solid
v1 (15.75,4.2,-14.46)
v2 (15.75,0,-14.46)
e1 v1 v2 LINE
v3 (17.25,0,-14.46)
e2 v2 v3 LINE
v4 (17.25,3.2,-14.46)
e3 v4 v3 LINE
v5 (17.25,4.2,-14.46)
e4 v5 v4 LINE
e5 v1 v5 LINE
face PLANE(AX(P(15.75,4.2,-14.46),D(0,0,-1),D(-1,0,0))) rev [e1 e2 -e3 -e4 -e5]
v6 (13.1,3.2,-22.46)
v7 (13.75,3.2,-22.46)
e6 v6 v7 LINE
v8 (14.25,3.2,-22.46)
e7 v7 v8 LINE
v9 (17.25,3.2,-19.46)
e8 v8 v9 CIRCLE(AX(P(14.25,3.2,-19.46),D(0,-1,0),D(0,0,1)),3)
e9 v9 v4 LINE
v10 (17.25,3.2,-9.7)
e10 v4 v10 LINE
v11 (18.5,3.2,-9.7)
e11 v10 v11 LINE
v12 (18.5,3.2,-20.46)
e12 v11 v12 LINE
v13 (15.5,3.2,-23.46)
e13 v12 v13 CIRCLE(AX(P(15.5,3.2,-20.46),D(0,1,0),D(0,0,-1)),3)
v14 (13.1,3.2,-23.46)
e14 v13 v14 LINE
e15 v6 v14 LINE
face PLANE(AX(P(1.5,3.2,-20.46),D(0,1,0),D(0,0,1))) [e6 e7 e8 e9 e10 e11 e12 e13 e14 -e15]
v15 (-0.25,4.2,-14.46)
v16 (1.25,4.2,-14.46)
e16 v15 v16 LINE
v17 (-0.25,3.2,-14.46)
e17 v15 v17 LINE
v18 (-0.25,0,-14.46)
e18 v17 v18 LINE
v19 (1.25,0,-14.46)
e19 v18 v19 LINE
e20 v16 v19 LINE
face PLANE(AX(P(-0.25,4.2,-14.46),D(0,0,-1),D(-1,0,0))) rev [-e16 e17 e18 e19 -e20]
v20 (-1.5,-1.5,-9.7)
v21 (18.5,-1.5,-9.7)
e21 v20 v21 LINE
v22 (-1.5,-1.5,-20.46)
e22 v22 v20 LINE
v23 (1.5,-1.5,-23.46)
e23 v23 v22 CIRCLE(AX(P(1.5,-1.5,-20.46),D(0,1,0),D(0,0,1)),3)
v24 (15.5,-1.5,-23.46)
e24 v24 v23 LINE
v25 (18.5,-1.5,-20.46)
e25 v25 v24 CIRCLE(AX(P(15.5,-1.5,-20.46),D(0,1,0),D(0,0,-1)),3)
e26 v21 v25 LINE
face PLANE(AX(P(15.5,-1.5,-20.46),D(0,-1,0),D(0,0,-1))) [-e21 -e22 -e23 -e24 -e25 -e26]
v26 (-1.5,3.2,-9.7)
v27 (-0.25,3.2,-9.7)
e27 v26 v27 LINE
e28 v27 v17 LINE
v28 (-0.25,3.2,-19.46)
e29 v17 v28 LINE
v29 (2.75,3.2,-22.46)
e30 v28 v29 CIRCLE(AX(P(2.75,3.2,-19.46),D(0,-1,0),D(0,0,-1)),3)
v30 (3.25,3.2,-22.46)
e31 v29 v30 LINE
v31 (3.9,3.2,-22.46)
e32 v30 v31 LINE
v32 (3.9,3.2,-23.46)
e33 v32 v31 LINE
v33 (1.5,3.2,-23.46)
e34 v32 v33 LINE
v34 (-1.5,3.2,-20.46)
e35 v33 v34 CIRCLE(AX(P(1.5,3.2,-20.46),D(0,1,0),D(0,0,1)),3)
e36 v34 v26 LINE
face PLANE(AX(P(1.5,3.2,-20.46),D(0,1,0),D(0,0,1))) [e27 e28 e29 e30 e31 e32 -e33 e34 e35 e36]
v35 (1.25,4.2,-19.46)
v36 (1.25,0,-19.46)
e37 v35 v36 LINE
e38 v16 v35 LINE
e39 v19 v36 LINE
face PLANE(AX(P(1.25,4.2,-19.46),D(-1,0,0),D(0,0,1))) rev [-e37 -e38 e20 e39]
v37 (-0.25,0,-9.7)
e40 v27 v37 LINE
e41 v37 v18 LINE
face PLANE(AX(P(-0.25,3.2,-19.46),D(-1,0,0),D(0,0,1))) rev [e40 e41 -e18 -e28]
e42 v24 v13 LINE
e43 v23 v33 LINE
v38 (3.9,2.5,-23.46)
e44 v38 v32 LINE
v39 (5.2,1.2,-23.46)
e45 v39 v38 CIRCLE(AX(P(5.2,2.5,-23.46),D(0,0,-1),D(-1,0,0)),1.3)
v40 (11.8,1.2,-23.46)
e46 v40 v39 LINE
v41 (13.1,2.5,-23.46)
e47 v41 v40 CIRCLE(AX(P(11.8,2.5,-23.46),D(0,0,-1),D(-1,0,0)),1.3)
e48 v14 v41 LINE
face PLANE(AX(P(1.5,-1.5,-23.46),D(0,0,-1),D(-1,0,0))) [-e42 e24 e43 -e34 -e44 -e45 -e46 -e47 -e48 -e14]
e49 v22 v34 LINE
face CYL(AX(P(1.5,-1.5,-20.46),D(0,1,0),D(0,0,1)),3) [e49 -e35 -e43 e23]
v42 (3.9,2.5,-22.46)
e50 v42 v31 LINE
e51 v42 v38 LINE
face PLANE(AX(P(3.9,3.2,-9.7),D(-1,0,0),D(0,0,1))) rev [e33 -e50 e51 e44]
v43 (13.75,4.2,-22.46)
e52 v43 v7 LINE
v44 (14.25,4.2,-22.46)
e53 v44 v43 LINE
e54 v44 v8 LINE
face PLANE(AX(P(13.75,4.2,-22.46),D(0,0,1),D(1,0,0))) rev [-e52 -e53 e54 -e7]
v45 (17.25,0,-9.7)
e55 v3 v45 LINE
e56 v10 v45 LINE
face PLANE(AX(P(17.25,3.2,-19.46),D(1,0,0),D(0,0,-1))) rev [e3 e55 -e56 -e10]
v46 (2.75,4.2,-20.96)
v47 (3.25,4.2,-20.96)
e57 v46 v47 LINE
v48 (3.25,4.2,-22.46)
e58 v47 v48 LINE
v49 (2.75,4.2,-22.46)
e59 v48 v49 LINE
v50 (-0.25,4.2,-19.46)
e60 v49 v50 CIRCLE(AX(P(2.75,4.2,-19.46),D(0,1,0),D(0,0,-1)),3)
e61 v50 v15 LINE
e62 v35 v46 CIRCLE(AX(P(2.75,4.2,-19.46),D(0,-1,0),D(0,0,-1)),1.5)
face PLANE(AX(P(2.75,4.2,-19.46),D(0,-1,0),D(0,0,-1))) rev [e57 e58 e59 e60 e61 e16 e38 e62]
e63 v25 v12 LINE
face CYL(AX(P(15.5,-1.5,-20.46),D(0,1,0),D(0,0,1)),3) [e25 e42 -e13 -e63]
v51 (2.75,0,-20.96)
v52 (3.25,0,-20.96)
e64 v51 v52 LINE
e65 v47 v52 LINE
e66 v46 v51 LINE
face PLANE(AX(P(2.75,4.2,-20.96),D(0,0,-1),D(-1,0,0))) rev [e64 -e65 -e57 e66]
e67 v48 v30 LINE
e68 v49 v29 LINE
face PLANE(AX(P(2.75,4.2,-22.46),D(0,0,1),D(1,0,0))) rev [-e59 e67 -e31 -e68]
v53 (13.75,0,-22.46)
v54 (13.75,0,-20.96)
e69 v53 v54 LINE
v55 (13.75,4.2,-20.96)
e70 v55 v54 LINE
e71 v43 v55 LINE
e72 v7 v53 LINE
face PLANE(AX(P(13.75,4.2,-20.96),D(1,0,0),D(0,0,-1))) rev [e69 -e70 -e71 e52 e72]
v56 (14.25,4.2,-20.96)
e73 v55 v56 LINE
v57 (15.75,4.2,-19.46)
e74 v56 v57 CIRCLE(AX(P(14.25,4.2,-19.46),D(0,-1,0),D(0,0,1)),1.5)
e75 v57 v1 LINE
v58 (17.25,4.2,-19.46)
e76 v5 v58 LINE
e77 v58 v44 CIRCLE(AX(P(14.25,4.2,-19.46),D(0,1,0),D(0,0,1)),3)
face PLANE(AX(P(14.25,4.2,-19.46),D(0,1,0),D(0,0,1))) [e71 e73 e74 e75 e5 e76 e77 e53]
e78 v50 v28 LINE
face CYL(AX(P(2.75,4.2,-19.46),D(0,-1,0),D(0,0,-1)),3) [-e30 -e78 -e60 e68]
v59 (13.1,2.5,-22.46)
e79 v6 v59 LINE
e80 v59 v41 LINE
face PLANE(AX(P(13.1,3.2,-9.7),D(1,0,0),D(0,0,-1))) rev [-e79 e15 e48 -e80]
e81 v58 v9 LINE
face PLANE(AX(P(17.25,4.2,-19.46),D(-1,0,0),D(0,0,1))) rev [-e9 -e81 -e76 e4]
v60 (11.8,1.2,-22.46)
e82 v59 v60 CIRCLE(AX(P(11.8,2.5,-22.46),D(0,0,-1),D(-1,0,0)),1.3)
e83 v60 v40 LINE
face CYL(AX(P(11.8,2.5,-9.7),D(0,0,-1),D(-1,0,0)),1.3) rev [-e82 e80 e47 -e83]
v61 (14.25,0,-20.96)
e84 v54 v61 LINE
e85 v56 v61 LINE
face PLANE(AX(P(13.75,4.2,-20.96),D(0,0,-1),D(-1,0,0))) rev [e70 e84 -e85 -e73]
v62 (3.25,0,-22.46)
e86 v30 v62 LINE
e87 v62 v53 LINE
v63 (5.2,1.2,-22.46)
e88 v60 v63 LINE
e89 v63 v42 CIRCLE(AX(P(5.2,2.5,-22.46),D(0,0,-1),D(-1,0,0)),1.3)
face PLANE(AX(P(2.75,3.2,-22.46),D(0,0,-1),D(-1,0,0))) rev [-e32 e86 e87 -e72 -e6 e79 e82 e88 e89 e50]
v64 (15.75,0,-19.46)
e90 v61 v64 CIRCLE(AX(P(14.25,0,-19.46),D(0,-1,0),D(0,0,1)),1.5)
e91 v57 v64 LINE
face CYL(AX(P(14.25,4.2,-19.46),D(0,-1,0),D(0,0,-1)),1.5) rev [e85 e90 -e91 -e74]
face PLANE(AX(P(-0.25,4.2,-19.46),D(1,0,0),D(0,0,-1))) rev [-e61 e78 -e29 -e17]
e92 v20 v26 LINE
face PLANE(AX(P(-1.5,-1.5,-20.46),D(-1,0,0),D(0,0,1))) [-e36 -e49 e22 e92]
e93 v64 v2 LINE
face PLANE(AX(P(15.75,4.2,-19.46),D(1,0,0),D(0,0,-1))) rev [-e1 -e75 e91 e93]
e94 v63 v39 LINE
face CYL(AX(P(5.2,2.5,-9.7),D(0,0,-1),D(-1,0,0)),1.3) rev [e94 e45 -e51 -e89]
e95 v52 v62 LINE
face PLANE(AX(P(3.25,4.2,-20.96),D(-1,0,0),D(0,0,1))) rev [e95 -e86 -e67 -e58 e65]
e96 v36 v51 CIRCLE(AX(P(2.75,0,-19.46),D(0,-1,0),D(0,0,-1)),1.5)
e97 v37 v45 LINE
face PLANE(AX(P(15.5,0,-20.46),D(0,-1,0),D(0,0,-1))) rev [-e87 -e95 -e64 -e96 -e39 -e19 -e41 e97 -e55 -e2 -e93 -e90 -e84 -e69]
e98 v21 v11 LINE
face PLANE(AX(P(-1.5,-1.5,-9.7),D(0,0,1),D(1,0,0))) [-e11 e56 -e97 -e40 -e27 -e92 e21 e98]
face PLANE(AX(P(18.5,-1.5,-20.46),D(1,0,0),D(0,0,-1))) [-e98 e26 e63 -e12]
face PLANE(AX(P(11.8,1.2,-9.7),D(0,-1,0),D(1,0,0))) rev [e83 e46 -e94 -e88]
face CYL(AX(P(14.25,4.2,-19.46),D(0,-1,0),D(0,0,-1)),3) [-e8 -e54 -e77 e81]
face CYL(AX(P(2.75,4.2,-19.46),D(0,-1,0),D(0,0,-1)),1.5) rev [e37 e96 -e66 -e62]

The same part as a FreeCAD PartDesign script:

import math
import FreeCAD as App
import Part
import Sketcher
from FreeCAD import Vector
Q = App.Units.Quantity

doc = App.newDocument("Part")
body = doc.addObject("PartDesign::Body", "Body")

# Sketch on XZ plane
sketch1 = body.newObject("Sketcher::SketchObject", "Sketch")
sketch1.AttachmentSupport = (doc.getObject("XZ_Plane"), [""])
sketch1.MapMode = "FlatFace"
sketch1.addGeometry(Part.LineSegment(Vector(-1.5, -20.46, 0), Vector(-1.5, -9.7, 0)), False)
sketch1.addGeometry(Part.LineSegment(Vector(-1.5, -9.7, 0), Vector(18.5, -9.7, 0)), False)
sketch1.addGeometry(Part.LineSegment(Vector(18.5, -9.7, 0), Vector(18.5, -20.46, 0)), False)
sketch1.addGeometry(Part.ArcOfCircle(Part.Circle(Vector(15.5, -20.46, 0), Vector(0, 0, 1), 3), math.radians(-90), math.radians(0)), False)
sketch1.addGeometry(Part.LineSegment(Vector(15.5, -23.46, 0), Vector(1.5, -23.46, 0)), False)
sketch1.addGeometry(Part.ArcOfCircle(Part.Circle(Vector(1.5, -20.46, 0), Vector(0, 0, 1), 3), math.radians(180), math.radians(270)), False)
sketch1.addConstraint(Sketcher.Constraint("Coincident", 0, 2, 1, 1))
sketch1.addConstraint(Sketcher.Constraint("Coincident", 1, 2, 2, 1))
sketch1.addConstraint(Sketcher.Constraint("Tangent", 2, 2, 3, 2))
sketch1.addConstraint(Sketcher.Constraint("Tangent", 3, 1, 4, 1))
sketch1.addConstraint(Sketcher.Constraint("Tangent", 4, 2, 5, 2))
sketch1.addConstraint(Sketcher.Constraint("Tangent", 5, 1, 0, 1))
sketch1.addConstraint(Sketcher.Constraint("Vertical", 0))
sketch1.addConstraint(Sketcher.Constraint("Horizontal", 1))
sketch1.addConstraint(Sketcher.Constraint("Vertical", 2))
sketch1.addConstraint(Sketcher.Constraint("Horizontal", 4))
sketch1.addConstraint(Sketcher.Constraint("Equal", 3, 5))
sketch1.addConstraint(Sketcher.Constraint("Radius", 3, Q("3 mm")))
sketch1.addConstraint(Sketcher.Constraint("DistanceX", 1, 1, 1, 2, Q("20 mm")))
sketch1.addConstraint(Sketcher.Constraint("DistanceY", 0, 1, 0, 2, Q("10.76 mm")))
sketch1.addConstraint(Sketcher.Constraint("DistanceX", -1, 1, 3, 3, Q("15.5 mm")))
sketch1.addConstraint(Sketcher.Constraint("DistanceY", 0, 2, -1, 1, Q("9.7 mm")))
pad1 = body.newObject("PartDesign::Pad", "Pad")
pad1.Profile = sketch1
pad1.Length = 1.5

# Sketch on XZ plane
sketch2 = body.newObject("Sketcher::SketchObject", "Sketch001")
sketch2.AttachmentSupport = (doc.getObject("XZ_Plane"), [""])
sketch2.MapMode = "FlatFace"
sketch2.AttachmentOffset = App.Placement(Vector(0, 0, -3.2), App.Rotation())
sketch2.addGeometry(Part.LineSegment(Vector(2.75, -22.46, 0), Vector(14.25, -22.46, 0)), False)
sketch2.addGeometry(Part.ArcOfCircle(Part.Circle(Vector(14.25, -19.46, 0), Vector(0, 0, 1), 3), math.radians(-90), math.radians(0)), False)
sketch2.addGeometry(Part.LineSegment(Vector(17.25, -19.46, 0), Vector(17.25, -9.7, 0)), False)
sketch2.addGeometry(Part.LineSegment(Vector(17.25, -9.7, 0), Vector(18.5, -9.7, 0)), False)
sketch2.addGeometry(Part.LineSegment(Vector(18.5, -9.7, 0), Vector(18.5, -20.46, 0)), False)
sketch2.addGeometry(Part.ArcOfCircle(Part.Circle(Vector(15.5, -20.46, 0), Vector(0, 0, 1), 3), math.radians(-90), math.radians(0)), False)
sketch2.addGeometry(Part.LineSegment(Vector(15.5, -23.46, 0), Vector(1.5, -23.46, 0)), False)
sketch2.addGeometry(Part.ArcOfCircle(Part.Circle(Vector(1.5, -20.46, 0), Vector(0, 0, 1), 3), math.radians(180), math.radians(270)), False)
sketch2.addGeometry(Part.LineSegment(Vector(-1.5, -20.46, 0), Vector(-1.5, -9.7, 0)), False)
sketch2.addGeometry(Part.LineSegment(Vector(-1.5, -9.7, 0), Vector(-0.25, -9.7, 0)), False)
sketch2.addGeometry(Part.LineSegment(Vector(-0.25, -9.7, 0), Vector(-0.25, -19.46, 0)), False)
sketch2.addGeometry(Part.ArcOfCircle(Part.Circle(Vector(2.75, -19.46, 0), Vector(0, 0, 1), 3), math.radians(180), math.radians(270)), False)
sketch2.addConstraint(Sketcher.Constraint("Tangent", 0, 2, 1, 1))
sketch2.addConstraint(Sketcher.Constraint("Tangent", 1, 2, 2, 1))
sketch2.addConstraint(Sketcher.Constraint("Coincident", 2, 2, 3, 1))
sketch2.addConstraint(Sketcher.Constraint("Coincident", 3, 2, 4, 1))
sketch2.addConstraint(Sketcher.Constraint("Tangent", 4, 2, 5, 2))
sketch2.addConstraint(Sketcher.Constraint("Tangent", 5, 1, 6, 1))
sketch2.addConstraint(Sketcher.Constraint("Tangent", 6, 2, 7, 2))
sketch2.addConstraint(Sketcher.Constraint("Tangent", 7, 1, 8, 1))
sketch2.addConstraint(Sketcher.Constraint("Coincident", 8, 2, 9, 1))
sketch2.addConstraint(Sketcher.Constraint("Coincident", 9, 2, 10, 1))
sketch2.addConstraint(Sketcher.Constraint("Tangent", 10, 2, 11, 1))
sketch2.addConstraint(Sketcher.Constraint("Tangent", 11, 2, 0, 1))
sketch2.addConstraint(Sketcher.Constraint("Horizontal", 0))
sketch2.addConstraint(Sketcher.Constraint("Vertical", 2))
sketch2.addConstraint(Sketcher.Constraint("Horizontal", 3))
sketch2.addConstraint(Sketcher.Constraint("Vertical", 4))
sketch2.addConstraint(Sketcher.Constraint("Horizontal", 6))
sketch2.addConstraint(Sketcher.Constraint("Vertical", 8))
sketch2.addConstraint(Sketcher.Constraint("Horizontal", 9))
sketch2.addConstraint(Sketcher.Constraint("Vertical", 10))
sketch2.addConstraint(Sketcher.Constraint("Equal", 1, 5))
sketch2.addConstraint(Sketcher.Constraint("Equal", 5, 7))
sketch2.addConstraint(Sketcher.Constraint("Equal", 7, 11))
sketch2.addConstraint(Sketcher.Constraint("Horizontal", 3, 2, 8, 2))
sketch2.addConstraint(Sketcher.Constraint("Equal", 3, 9))
sketch2.addConstraint(Sketcher.Constraint("Radius", 1, Q("3 mm")))
sketch2.addConstraint(Sketcher.Constraint("DistanceX", 6, 2, 6, 1, Q("14 mm")))
sketch2.addConstraint(Sketcher.Constraint("DistanceX", 0, 1, 0, 2, Q("11.5 mm")))
sketch2.addConstraint(Sketcher.Constraint("DistanceY", 5, 3, 1, 3, Q("1 mm")))
sketch2.addConstraint(Sketcher.Constraint("DistanceY", 2, 1, 2, 2, Q("9.76 mm")))
sketch2.addConstraint(Sketcher.Constraint("DistanceX", -1, 1, 5, 3, Q("15.5 mm")))
sketch2.addConstraint(Sketcher.Constraint("DistanceY", 2, 2, -1, 1, Q("9.7 mm")))
pad2 = body.newObject("PartDesign::Pad", "Pad001")
pad2.Profile = sketch2
pad2.Length = 3.2

# Sketch on XZ plane
sketch3 = body.newObject("Sketcher::SketchObject", "Sketch002")
sketch3.AttachmentSupport = (doc.getObject("XZ_Plane"), [""])
sketch3.MapMode = "FlatFace"
sketch3.AttachmentOffset = App.Placement(Vector(0, 0, -4.2), App.Rotation())
sketch3.addGeometry(Part.LineSegment(Vector(2.75, -20.96, 0), Vector(3.25, -20.96, 0)), False)
sketch3.addGeometry(Part.LineSegment(Vector(3.25, -20.96, 0), Vector(3.25, -22.46, 0)), False)
sketch3.addGeometry(Part.LineSegment(Vector(3.25, -22.46, 0), Vector(2.75, -22.46, 0)), False)
sketch3.addGeometry(Part.ArcOfCircle(Part.Circle(Vector(2.75, -19.46, 0), Vector(0, 0, 1), 3), math.radians(180), math.radians(270)), False)
sketch3.addGeometry(Part.LineSegment(Vector(-0.25, -19.46, 0), Vector(-0.25, -14.46, 0)), False)
sketch3.addGeometry(Part.LineSegment(Vector(-0.25, -14.46, 0), Vector(1.25, -14.46, 0)), False)
sketch3.addGeometry(Part.LineSegment(Vector(1.25, -14.46, 0), Vector(1.25, -19.46, 0)), False)
sketch3.addGeometry(Part.ArcOfCircle(Part.Circle(Vector(2.75, -19.46, 0), Vector(0, 0, 1), 1.5), math.radians(180), math.radians(270)), False)
sketch3.addGeometry(Part.LineSegment(Vector(17.25, -14.46, 0), Vector(17.25, -19.46, 0)), False)
sketch3.addGeometry(Part.ArcOfCircle(Part.Circle(Vector(14.25, -19.46, 0), Vector(0, 0, 1), 3), math.radians(-90), math.radians(0)), False)
sketch3.addGeometry(Part.LineSegment(Vector(14.25, -22.46, 0), Vector(13.75, -22.46, 0)), False)
sketch3.addGeometry(Part.LineSegment(Vector(13.75, -22.46, 0), Vector(13.75, -20.96, 0)), False)
sketch3.addGeometry(Part.LineSegment(Vector(13.75, -20.96, 0), Vector(14.25, -20.96, 0)), False)
sketch3.addGeometry(Part.ArcOfCircle(Part.Circle(Vector(14.25, -19.46, 0), Vector(0, 0, 1), 1.5), math.radians(-90), math.radians(0)), False)
sketch3.addGeometry(Part.LineSegment(Vector(15.75, -19.46, 0), Vector(15.75, -14.46, 0)), False)
sketch3.addGeometry(Part.LineSegment(Vector(15.75, -14.46, 0), Vector(17.25, -14.46, 0)), False)
sketch3.addConstraint(Sketcher.Constraint("Coincident", 0, 2, 1, 1))
sketch3.addConstraint(Sketcher.Constraint("Coincident", 1, 2, 2, 1))
sketch3.addConstraint(Sketcher.Constraint("Tangent", 2, 2, 3, 2))
sketch3.addConstraint(Sketcher.Constraint("Tangent", 3, 1, 4, 1))
sketch3.addConstraint(Sketcher.Constraint("Coincident", 4, 2, 5, 1))
sketch3.addConstraint(Sketcher.Constraint("Coincident", 5, 2, 6, 1))
sketch3.addConstraint(Sketcher.Constraint("Tangent", 6, 2, 7, 1))
sketch3.addConstraint(Sketcher.Constraint("Tangent", 7, 2, 0, 1))
sketch3.addConstraint(Sketcher.Constraint("Tangent", 8, 2, 9, 2))
sketch3.addConstraint(Sketcher.Constraint("Tangent", 9, 1, 10, 1))
sketch3.addConstraint(Sketcher.Constraint("Coincident", 10, 2, 11, 1))
sketch3.addConstraint(Sketcher.Constraint("Coincident", 11, 2, 12, 1))
sketch3.addConstraint(Sketcher.Constraint("Tangent", 12, 2, 13, 1))
sketch3.addConstraint(Sketcher.Constraint("Tangent", 13, 2, 14, 1))
sketch3.addConstraint(Sketcher.Constraint("Coincident", 14, 2, 15, 1))
sketch3.addConstraint(Sketcher.Constraint("Coincident", 15, 2, 8, 1))
sketch3.addConstraint(Sketcher.Constraint("Horizontal", 0))
sketch3.addConstraint(Sketcher.Constraint("Vertical", 1))
sketch3.addConstraint(Sketcher.Constraint("Horizontal", 2))
sketch3.addConstraint(Sketcher.Constraint("Vertical", 4))
sketch3.addConstraint(Sketcher.Constraint("Horizontal", 5))
sketch3.addConstraint(Sketcher.Constraint("Vertical", 6))
sketch3.addConstraint(Sketcher.Constraint("Vertical", 8))
sketch3.addConstraint(Sketcher.Constraint("Horizontal", 10))
sketch3.addConstraint(Sketcher.Constraint("Vertical", 11))
sketch3.addConstraint(Sketcher.Constraint("Horizontal", 12))
sketch3.addConstraint(Sketcher.Constraint("Vertical", 14))
sketch3.addConstraint(Sketcher.Constraint("Horizontal", 15))
sketch3.addConstraint(Sketcher.Constraint("Coincident", 7, 3, 3, 3))
sketch3.addConstraint(Sketcher.Constraint("Coincident", 13, 3, 9, 3))
sketch3.addConstraint(Sketcher.Constraint("Equal", 3, 9))
sketch3.addConstraint(Sketcher.Constraint("Equal", 7, 13))
sketch3.addConstraint(Sketcher.Constraint("Horizontal", 7, 3, 9, 3))
sketch3.addConstraint(Sketcher.Constraint("Horizontal", 5, 2, 14, 2))
sketch3.addConstraint(Sketcher.Constraint("Equal", 2, 10))
sketch3.addConstraint(Sketcher.Constraint("Radius", 3, Q("3 mm")))
sketch3.addConstraint(Sketcher.Constraint("Radius", 7, Q("1.5 mm")))
sketch3.addConstraint(Sketcher.Constraint("DistanceY", 4, 1, 4, 2, Q("5 mm")))
sketch3.addConstraint(Sketcher.Constraint("DistanceX", 0, 1, 0, 2, Q("0.5 mm")))
sketch3.addConstraint(Sketcher.Constraint("DistanceX", 0, 2, 13, 3, Q("11 mm")))
sketch3.addConstraint(Sketcher.Constraint("DistanceX", -1, 1, 3, 3, Q("2.75 mm")))
sketch3.addConstraint(Sketcher.Constraint("DistanceY", 3, 3, -1, 1, Q("19.46 mm")))
pad3 = body.newObject("PartDesign::Pad", "Pad002")
pad3.Profile = sketch3
pad3.Length = 4.2

# Sketch on XY plane
sketch4 = body.newObject("Sketcher::SketchObject", "Sketch003")
sketch4.AttachmentSupport = (doc.getObject("XY_Plane"), [""])
sketch4.MapMode = "FlatFace"
sketch4.AttachmentOffset = App.Placement(Vector(0, 0, -23.46), App.Rotation())
sketch4.addGeometry(Part.LineSegment(Vector(3.9, 3.2, 0), Vector(13.1, 3.2, 0)), False)
sketch4.addGeometry(Part.LineSegment(Vector(13.1, 3.2, 0), Vector(13.1, 2.5, 0)), False)
sketch4.addGeometry(Part.ArcOfCircle(Part.Circle(Vector(11.8, 2.5, 0), Vector(0, 0, 1), 1.3), math.radians(-90), math.radians(0)), False)
sketch4.addGeometry(Part.LineSegment(Vector(11.8, 1.2, 0), Vector(5.2, 1.2, 0)), False)
sketch4.addGeometry(Part.ArcOfCircle(Part.Circle(Vector(5.2, 2.5, 0), Vector(0, 0, 1), 1.3), math.radians(180), math.radians(270)), False)
sketch4.addGeometry(Part.LineSegment(Vector(3.9, 2.5, 0), Vector(3.9, 3.2, 0)), False)
sketch4.addConstraint(Sketcher.Constraint("Coincident", 0, 2, 1, 1))
sketch4.addConstraint(Sketcher.Constraint("Tangent", 1, 2, 2, 2))
sketch4.addConstraint(Sketcher.Constraint("Tangent", 2, 1, 3, 1))
sketch4.addConstraint(Sketcher.Constraint("Tangent", 3, 2, 4, 2))
sketch4.addConstraint(Sketcher.Constraint("Tangent", 4, 1, 5, 1))
sketch4.addConstraint(Sketcher.Constraint("Coincident", 5, 2, 0, 1))
sketch4.addConstraint(Sketcher.Constraint("Horizontal", 0))
sketch4.addConstraint(Sketcher.Constraint("Vertical", 1))
sketch4.addConstraint(Sketcher.Constraint("Horizontal", 3))
sketch4.addConstraint(Sketcher.Constraint("Vertical", 5))
sketch4.addConstraint(Sketcher.Constraint("Equal", 2, 4))
sketch4.addConstraint(Sketcher.Constraint("Radius", 2, Q("1.3 mm")))
sketch4.addConstraint(Sketcher.Constraint("DistanceX", 0, 1, 0, 2, Q("9.2 mm")))
sketch4.addConstraint(Sketcher.Constraint("DistanceY", 1, 2, 1, 1, Q("0.7 mm")))
sketch4.addConstraint(Sketcher.Constraint("DistanceX", -1, 1, 2, 3, Q("11.8 mm")))
sketch4.addConstraint(Sketcher.Constraint("DistanceY", -1, 1, 2, 3, Q("2.5 mm")))
pocket1 = body.newObject("PartDesign::Pocket", "Pocket")
pocket1.Profile = sketch4
pocket1.Type = "ThroughAll"
pocket1.Reversed = True

doc.recompute()
